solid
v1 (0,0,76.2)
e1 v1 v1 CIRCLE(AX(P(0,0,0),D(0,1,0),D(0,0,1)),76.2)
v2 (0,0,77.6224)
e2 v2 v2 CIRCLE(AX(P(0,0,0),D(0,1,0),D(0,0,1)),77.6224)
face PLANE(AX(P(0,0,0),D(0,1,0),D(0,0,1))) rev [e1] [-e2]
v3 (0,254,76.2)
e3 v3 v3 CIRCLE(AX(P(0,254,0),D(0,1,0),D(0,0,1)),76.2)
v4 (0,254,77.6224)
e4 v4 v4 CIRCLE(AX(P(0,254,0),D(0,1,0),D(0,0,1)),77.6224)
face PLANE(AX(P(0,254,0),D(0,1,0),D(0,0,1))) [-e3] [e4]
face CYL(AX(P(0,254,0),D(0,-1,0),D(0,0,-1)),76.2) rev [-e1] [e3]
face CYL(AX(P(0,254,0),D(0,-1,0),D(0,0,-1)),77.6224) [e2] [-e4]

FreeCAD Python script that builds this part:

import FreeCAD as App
import Part
import Sketcher
from FreeCAD import Vector
Q = App.Units.Quantity

doc = App.newDocument("Part")
body = doc.addObject("PartDesign::Body", "Body")

# Sketch on XZ plane
sketch1 = doc.addObject("Sketcher::SketchObject", "Sketch")
body.addObject(sketch1)
sketch1.AttachmentSupport = (doc.XZ_Plane, [""])
sketch1.MapMode = "FlatFace"
sketch1.addGeometry([
    Part.Circle(Vector(0, 0, 0), Vector(0, 0, 1), 78),
    Part.Circle(Vector(0, 0, 0), Vector(0, 0, 1), 76),
], False)
sketch1.addConstraint([
    Sketcher.Constraint("Coincident", 0, 3, -1, 1),
    Sketcher.Constraint("Coincident", 1, 3, -1, 1),
    Sketcher.Constraint("Diameter", 1, Q("6 in")),
    Sketcher.Constraint("Diameter", 0, Q("6.112 in")),
])
pad1 = doc.addObject("PartDesign::Pad", "Pad")
body.addObject(pad1)
pad1.Profile = sketch1
pad1.Length = Q("10 in")
pad1.Reversed = True

doc.recompute()
